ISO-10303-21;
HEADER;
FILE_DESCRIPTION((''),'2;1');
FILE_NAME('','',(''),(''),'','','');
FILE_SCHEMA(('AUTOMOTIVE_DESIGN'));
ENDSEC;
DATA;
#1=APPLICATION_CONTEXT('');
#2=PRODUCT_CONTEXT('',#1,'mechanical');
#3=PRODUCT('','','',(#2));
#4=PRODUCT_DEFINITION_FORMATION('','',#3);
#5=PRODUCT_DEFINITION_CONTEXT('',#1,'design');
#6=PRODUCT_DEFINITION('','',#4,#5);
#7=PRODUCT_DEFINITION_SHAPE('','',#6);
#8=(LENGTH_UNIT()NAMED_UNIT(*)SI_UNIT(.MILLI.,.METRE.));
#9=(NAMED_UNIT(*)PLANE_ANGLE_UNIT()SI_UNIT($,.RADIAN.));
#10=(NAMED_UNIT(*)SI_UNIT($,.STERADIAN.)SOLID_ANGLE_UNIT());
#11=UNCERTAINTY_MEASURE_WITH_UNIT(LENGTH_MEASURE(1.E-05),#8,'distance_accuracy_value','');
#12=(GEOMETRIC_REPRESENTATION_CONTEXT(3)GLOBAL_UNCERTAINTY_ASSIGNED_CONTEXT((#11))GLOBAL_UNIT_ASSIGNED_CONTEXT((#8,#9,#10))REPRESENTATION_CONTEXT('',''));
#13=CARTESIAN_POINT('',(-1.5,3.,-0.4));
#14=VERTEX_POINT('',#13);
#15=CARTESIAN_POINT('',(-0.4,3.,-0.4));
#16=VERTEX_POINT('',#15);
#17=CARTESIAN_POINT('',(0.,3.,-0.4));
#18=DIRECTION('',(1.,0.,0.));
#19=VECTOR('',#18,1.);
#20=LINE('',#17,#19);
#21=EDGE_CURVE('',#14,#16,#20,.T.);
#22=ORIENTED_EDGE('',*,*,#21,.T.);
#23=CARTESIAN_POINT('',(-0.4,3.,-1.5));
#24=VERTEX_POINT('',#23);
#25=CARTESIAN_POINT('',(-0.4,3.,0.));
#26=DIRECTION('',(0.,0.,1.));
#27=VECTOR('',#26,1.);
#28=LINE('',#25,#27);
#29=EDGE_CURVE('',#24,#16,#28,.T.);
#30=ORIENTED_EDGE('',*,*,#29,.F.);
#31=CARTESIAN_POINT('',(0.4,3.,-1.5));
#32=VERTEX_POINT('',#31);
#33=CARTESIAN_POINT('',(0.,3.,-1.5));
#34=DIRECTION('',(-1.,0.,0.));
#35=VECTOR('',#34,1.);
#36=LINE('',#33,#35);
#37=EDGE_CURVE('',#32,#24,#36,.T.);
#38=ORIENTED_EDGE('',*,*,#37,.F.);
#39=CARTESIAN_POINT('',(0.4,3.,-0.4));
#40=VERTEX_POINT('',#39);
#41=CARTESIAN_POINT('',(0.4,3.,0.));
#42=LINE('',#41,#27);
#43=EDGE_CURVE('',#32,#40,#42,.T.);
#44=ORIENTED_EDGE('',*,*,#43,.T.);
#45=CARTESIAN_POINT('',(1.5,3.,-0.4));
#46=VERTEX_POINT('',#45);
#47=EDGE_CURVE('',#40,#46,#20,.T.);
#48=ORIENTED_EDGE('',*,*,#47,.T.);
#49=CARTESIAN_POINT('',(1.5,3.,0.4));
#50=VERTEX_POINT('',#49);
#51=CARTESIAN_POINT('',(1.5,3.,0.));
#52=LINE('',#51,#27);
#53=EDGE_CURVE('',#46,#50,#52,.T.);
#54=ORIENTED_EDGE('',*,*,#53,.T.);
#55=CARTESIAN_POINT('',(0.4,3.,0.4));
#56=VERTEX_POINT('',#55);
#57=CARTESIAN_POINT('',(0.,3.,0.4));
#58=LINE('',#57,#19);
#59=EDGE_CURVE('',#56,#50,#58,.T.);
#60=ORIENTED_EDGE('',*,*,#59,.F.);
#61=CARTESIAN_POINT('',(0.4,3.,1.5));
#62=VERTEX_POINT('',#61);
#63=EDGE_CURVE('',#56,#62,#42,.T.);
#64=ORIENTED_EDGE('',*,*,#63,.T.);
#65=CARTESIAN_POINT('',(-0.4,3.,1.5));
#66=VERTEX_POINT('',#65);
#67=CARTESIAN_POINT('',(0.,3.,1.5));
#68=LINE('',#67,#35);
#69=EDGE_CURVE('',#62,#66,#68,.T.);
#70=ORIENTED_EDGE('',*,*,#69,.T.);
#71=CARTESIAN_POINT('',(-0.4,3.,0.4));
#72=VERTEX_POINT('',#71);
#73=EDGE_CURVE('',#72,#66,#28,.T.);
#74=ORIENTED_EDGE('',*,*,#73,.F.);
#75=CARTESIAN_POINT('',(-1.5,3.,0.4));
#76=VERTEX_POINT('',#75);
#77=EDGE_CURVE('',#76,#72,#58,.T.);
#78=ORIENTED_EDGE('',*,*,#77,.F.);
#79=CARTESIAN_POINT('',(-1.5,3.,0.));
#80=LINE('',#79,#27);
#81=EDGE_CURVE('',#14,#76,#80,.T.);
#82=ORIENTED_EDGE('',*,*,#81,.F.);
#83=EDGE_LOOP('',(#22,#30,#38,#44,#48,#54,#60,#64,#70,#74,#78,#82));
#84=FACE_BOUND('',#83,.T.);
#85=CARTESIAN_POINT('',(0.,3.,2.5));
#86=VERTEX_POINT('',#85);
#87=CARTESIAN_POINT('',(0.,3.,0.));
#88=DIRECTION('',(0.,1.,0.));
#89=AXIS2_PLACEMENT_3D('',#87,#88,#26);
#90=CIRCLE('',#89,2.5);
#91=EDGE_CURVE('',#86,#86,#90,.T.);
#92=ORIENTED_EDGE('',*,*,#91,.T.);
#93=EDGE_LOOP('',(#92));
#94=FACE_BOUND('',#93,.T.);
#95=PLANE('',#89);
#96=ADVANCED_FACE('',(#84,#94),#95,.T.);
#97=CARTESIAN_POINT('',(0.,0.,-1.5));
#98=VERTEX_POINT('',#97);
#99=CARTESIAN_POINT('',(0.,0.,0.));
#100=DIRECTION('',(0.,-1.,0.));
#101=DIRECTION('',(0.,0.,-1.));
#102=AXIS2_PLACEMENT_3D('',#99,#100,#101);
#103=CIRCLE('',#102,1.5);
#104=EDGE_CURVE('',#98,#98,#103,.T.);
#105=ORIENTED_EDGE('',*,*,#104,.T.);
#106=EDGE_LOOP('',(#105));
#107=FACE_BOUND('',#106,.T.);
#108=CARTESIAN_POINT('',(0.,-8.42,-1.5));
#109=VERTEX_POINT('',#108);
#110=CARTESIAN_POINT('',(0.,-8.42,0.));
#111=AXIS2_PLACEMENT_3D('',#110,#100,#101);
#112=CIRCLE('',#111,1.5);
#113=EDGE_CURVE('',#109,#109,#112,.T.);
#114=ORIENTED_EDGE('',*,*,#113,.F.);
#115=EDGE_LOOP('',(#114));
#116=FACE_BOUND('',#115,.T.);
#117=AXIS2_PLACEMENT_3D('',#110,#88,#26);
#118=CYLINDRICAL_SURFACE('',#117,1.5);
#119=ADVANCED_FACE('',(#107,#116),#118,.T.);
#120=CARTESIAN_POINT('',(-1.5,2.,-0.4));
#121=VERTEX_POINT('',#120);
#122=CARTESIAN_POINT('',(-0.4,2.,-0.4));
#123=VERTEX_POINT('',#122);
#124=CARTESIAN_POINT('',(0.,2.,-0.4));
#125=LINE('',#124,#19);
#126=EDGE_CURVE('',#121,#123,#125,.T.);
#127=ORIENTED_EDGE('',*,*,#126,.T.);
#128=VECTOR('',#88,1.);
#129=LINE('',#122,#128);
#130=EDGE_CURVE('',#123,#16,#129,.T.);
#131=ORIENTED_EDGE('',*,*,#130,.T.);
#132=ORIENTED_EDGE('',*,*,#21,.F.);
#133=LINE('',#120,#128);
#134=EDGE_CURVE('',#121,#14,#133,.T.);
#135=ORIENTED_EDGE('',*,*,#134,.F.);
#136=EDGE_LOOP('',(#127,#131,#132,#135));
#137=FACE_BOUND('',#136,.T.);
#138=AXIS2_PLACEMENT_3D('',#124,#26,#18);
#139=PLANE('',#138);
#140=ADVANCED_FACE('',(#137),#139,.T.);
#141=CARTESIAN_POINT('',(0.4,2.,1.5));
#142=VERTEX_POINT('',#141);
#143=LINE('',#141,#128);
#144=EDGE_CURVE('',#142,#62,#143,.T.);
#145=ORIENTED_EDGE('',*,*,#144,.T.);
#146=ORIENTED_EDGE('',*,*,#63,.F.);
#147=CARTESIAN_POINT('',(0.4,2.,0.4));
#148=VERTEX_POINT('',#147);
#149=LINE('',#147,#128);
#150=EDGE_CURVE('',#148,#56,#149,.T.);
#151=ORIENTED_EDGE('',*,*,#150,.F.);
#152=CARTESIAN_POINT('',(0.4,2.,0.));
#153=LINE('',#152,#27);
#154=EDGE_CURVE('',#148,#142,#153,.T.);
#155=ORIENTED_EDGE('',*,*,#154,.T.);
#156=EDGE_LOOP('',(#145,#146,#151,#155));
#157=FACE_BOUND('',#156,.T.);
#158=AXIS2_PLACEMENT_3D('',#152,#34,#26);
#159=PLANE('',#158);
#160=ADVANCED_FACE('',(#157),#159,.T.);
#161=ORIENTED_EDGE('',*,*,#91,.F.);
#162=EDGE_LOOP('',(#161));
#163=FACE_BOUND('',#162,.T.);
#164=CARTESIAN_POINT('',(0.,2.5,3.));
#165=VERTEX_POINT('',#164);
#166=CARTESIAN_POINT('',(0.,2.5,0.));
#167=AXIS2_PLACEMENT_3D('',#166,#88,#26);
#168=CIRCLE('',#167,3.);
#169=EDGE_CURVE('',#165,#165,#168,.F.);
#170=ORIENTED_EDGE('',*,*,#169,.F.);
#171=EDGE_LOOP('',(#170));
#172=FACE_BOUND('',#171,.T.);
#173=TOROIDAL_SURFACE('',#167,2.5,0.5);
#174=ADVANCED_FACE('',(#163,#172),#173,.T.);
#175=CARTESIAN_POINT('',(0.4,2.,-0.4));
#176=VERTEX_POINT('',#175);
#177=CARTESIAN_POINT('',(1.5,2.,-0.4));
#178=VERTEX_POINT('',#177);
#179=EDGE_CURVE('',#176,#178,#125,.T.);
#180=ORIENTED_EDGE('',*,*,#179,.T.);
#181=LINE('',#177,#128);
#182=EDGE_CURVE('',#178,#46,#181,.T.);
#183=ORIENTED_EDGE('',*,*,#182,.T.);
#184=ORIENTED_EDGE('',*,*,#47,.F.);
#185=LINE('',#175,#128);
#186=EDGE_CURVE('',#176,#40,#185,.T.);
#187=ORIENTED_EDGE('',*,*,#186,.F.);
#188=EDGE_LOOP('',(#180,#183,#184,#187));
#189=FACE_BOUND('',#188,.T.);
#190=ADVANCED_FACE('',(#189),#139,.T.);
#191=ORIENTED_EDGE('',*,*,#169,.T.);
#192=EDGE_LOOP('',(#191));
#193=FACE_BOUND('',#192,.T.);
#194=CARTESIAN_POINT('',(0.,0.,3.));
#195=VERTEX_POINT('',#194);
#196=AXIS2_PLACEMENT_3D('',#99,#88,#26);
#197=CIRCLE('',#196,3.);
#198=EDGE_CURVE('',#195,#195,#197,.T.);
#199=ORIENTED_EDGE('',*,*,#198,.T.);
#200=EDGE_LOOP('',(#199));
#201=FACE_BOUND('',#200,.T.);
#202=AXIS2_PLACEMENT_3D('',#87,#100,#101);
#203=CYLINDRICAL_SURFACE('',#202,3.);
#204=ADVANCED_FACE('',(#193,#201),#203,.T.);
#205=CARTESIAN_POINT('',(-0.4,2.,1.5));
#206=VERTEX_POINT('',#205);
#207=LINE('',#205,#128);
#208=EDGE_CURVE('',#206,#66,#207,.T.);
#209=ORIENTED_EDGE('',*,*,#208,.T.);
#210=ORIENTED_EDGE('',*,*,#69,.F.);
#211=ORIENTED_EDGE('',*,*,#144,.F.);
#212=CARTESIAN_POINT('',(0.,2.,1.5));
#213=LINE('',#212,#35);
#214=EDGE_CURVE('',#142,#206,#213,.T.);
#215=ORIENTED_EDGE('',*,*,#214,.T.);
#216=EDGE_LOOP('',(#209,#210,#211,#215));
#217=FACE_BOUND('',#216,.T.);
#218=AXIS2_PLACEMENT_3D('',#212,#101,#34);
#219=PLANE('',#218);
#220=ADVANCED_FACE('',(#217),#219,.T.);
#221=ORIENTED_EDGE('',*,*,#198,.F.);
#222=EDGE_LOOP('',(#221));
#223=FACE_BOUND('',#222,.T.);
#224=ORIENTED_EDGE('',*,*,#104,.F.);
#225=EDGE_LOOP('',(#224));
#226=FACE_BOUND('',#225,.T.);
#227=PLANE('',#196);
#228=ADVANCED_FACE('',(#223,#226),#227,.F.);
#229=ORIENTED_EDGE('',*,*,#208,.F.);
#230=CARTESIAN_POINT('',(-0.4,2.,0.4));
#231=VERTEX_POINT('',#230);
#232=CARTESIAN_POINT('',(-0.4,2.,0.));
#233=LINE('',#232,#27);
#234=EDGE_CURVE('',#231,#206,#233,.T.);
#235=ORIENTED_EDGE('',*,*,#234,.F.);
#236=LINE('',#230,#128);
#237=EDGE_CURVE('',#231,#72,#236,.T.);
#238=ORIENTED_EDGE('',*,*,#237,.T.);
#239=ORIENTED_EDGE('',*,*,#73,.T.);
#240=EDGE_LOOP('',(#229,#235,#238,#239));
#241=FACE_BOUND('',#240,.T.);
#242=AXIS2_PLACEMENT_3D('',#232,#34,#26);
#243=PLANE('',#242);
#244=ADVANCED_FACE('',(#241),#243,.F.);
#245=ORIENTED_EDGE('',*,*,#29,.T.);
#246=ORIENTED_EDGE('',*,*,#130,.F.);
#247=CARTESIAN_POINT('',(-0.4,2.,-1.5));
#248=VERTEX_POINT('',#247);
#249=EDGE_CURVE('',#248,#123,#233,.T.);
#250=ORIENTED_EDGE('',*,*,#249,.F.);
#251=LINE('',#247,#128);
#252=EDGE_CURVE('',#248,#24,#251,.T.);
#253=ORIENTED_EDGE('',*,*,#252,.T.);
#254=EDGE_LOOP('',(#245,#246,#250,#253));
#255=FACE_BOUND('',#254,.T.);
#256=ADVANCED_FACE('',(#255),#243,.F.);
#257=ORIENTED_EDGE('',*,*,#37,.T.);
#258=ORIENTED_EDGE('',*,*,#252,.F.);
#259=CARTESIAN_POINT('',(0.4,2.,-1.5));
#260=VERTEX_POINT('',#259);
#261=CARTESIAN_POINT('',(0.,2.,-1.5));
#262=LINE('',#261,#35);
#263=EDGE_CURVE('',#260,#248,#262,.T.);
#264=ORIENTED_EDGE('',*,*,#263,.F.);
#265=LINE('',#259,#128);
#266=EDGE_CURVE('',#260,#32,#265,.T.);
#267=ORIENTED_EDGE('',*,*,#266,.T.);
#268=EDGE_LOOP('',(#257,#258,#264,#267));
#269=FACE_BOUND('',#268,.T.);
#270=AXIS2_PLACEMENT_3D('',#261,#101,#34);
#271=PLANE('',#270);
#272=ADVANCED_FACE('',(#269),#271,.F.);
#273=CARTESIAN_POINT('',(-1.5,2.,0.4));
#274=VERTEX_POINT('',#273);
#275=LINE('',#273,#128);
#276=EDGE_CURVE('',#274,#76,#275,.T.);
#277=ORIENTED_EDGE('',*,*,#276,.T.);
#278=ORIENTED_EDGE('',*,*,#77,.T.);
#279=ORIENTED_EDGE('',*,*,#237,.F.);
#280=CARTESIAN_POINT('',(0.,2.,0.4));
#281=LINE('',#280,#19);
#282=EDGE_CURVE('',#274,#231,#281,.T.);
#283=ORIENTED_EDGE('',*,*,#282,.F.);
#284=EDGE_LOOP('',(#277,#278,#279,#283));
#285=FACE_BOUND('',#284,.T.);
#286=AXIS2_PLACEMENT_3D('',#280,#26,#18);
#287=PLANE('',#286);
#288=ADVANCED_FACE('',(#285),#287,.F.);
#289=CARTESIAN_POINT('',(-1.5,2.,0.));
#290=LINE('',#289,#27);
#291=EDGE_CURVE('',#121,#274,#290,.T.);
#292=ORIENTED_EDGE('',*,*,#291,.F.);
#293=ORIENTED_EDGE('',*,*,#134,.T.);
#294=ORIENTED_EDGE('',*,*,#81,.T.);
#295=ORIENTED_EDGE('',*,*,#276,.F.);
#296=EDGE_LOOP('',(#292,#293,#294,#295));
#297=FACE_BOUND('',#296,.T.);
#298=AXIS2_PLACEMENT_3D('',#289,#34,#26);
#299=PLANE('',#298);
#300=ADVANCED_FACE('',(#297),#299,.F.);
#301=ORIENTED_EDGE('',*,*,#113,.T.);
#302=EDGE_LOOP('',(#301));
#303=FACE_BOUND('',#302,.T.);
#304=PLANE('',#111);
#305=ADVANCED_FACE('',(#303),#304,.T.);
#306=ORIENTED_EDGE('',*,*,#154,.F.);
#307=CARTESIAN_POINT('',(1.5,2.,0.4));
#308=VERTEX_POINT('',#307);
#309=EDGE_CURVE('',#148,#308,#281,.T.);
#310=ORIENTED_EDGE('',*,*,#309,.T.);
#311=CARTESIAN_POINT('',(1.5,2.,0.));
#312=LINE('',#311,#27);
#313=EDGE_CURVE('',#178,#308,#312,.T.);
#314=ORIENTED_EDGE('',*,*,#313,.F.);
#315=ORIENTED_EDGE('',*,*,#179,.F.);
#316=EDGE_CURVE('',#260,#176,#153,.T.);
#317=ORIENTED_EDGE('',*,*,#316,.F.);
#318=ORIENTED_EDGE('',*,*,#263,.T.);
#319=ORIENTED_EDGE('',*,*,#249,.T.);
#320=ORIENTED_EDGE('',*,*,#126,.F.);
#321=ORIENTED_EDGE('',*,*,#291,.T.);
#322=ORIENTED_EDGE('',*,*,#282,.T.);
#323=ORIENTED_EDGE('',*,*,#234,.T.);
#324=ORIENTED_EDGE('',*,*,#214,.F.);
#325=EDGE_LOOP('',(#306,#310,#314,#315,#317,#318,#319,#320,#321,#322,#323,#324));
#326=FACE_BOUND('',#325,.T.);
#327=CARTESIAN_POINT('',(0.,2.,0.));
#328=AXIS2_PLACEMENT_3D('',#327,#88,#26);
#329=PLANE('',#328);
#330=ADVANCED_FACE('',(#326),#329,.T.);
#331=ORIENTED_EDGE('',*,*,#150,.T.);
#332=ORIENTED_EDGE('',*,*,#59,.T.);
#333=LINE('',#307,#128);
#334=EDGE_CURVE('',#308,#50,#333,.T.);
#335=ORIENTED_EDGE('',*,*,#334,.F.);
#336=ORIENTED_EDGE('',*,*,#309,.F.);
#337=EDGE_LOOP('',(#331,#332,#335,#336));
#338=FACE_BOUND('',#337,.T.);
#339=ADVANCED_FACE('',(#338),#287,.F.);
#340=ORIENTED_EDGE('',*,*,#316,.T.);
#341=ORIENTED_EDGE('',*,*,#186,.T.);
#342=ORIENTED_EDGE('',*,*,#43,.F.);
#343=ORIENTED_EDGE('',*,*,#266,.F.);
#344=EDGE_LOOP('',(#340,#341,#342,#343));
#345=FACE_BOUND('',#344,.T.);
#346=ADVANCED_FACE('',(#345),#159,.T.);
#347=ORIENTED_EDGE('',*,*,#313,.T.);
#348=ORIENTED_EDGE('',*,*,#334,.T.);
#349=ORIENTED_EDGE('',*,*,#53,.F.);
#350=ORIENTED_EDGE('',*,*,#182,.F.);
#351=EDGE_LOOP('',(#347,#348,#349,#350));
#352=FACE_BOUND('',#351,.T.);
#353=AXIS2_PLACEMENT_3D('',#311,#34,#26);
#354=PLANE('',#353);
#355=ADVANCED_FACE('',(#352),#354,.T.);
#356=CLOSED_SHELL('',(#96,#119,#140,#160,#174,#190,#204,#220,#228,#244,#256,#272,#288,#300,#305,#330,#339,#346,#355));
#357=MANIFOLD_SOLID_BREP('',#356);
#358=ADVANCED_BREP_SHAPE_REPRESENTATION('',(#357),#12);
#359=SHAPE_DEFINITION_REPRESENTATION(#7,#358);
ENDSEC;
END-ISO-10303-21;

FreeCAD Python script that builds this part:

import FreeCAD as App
import Part
import Sketcher
from FreeCAD import Vector
Q = App.Units.Quantity


def edges_at(feature, points):
    """Names of the edges that pass closest to the given points."""
    edges = feature.Shape.Edges
    near = lambda p: min(range(len(edges)), key=lambda i: edges[i].distToShape(Part.Vertex(*p))[0])
    return sorted({f"Edge{near(p) + 1}" for p in points})

doc = App.newDocument("Part")
body = doc.addObject("PartDesign::Body", "Body")

# Sketch on XZ plane
sketch1 = doc.addObject("Sketcher::SketchObject", "Sketch")
body.addObject(sketch1)
sketch1.AttachmentSupport = (doc.XZ_Plane, [""])
sketch1.MapMode = "FlatFace"
sketch1.addGeometry(Part.Circle(Vector(0, 0, 0), Vector(0, 0, 1), 3), False)
sketch1.addConstraint(Sketcher.Constraint("Coincident", 0, 3, -1, 1))
sketch1.addConstraint(Sketcher.Constraint("Diameter", 0, Q("6 mm")))
pad1 = doc.addObject("PartDesign::Pad", "Pad")
body.addObject(pad1)
pad1.Profile = sketch1
pad1.Length = 3
pad1.Reversed = True

# Sketch on XZ plane
sketch2 = doc.addObject("Sketcher::SketchObject", "Sketch001")
body.addObject(sketch2)
sketch2.AttachmentSupport = (doc.XZ_Plane, [""])
sketch2.MapMode = "FlatFace"
sketch2.addGeometry(Part.Circle(Vector(0, 0, 0), Vector(0, 0, 1), 1.5), False)
sketch2.addConstraint(Sketcher.Constraint("Coincident", 0, 3, -1, 1))
sketch2.addConstraint(Sketcher.Constraint("Diameter", 0, Q("3 mm")))
pad2 = doc.addObject("PartDesign::Pad", "Pad001")
body.addObject(pad2)
pad2.Profile = sketch2
pad2.Length = 8.42
doc.recompute()

fillet = doc.addObject("PartDesign::Fillet", "Fillet")
body.addObject(fillet)
fillet.Base = (pad2, edges_at(pad2, [(0, 3, -3)]))
fillet.Radius = 0.5

# Sketch on XZ plane
sketch3 = doc.addObject("Sketcher::SketchObject", "Sketch002")
body.addObject(sketch3)
sketch3.AttachmentSupport = (doc.XZ_Plane, [""])
sketch3.MapMode = "FlatFace"
sketch3.AttachmentOffset = App.Placement(Vector(0, 0, -3), App.Rotation())
sketch3.addGeometry(Part.LineSegment(Vector(-0.4, -1.5, 0), Vector(-0.4, -0.4, 0)), False)
sketch3.addGeometry(Part.LineSegment(Vector(-0.4, -0.4, 0), Vector(-1.5, -0.4, 0)), False)
sketch3.addGeometry(Part.LineSegment(Vector(-1.5, -0.4, 0), Vector(-1.5, 0.4, 0)), False)
sketch3.addGeometry(Part.LineSegment(Vector(-1.5, 0.4, 0), Vector(-0.4, 0.4, 0)), False)
sketch3.addGeometry(Part.LineSegment(Vector(-0.4, 0.4, 0), Vector(-0.4, 1.5, 0)), False)
sketch3.addGeometry(Part.LineSegment(Vector(-0.4, 1.5, 0), Vector(0.4, 1.5, 0)), False)
sketch3.addGeometry(Part.LineSegment(Vector(0.4, 1.5, 0), Vector(0.4, 0.4, 0)), False)
sketch3.addGeometry(Part.LineSegment(Vector(0.4, 0.4, 0), Vector(1.5, 0.4, 0)), False)
sketch3.addGeometry(Part.LineSegment(Vector(1.5, 0.4, 0), Vector(1.5, -0.4, 0)), False)
sketch3.addGeometry(Part.LineSegment(Vector(1.5, -0.4, 0), Vector(0.4, -0.4, 0)), False)
sketch3.addGeometry(Part.LineSegment(Vector(0.4, -0.4, 0), Vector(0.4, -1.5, 0)), False)
sketch3.addGeometry(Part.LineSegment(Vector(0.4, -1.5, 0), Vector(-0.4, -1.5, 0)), False)
sketch3.addConstraint(Sketcher.Constraint("Coincident", 0, 2, 1, 1))
sketch3.addConstraint(Sketcher.Constraint("Coincident", 1, 2, 2, 1))
sketch3.addConstraint(Sketcher.Constraint("Coincident", 2, 2, 3, 1))
sketch3.addConstraint(Sketcher.Constraint("Coincident", 3, 2, 4, 1))
sketch3.addConstraint(Sketcher.Constraint("Coincident", 4, 2, 5, 1))
sketch3.addConstraint(Sketcher.Constraint("Coincident", 5, 2, 6, 1))
sketch3.addConstraint(Sketcher.Constraint("Coincident", 6, 2, 7, 1))
sketch3.addConstraint(Sketcher.Constraint("Coincident", 7, 2, 8, 1))
sketch3.addConstraint(Sketcher.Constraint("Coincident", 8, 2, 9, 1))
sketch3.addConstraint(Sketcher.Constraint("Coincident", 9, 2, 10, 1))
sketch3.addConstraint(Sketcher.Constraint("Coincident", 10, 2, 11, 1))
sketch3.addConstraint(Sketcher.Constraint("Coincident", 11, 2, 0, 1))
sketch3.addConstraint(Sketcher.Constraint("Vertical", 0))
sketch3.addConstraint(Sketcher.Constraint("Horizontal", 1))
sketch3.addConstraint(Sketcher.Constraint("Vertical", 2))
sketch3.addConstraint(Sketcher.Constraint("Horizontal", 3))
sketch3.addConstraint(Sketcher.Constraint("Vertical", 4))
sketch3.addConstraint(Sketcher.Constraint("Horizontal", 5))
sketch3.addConstraint(Sketcher.Constraint("Vertical", 6))
sketch3.addConstraint(Sketcher.Constraint("Horizontal", 7))
sketch3.addConstraint(Sketcher.Constraint("Vertical", 8))
sketch3.addConstraint(Sketcher.Constraint("Horizontal", 9))
sketch3.addConstraint(Sketcher.Constraint("Vertical", 10))
sketch3.addConstraint(Sketcher.Constraint("Horizontal", 11))
sketch3.addConstraint(Sketcher.Constraint("Symmetric", 0, 2, 6, 2, -1, 1))
sketch3.addConstraint(Sketcher.Constraint("Symmetric", 2, 2, 8, 2, -1, 1))
sketch3.addConstraint(Sketcher.Constraint("Symmetric", 4, 2, 10, 2, -1, 1))
sketch3.addConstraint(Sketcher.Constraint("Symmetric", 3, 2, 6, 2, -2))
sketch3.addConstraint(Sketcher.Constraint("Equal", 9, 0))
sketch3.addConstraint(Sketcher.Constraint("Equal", 11, 2))
sketch3.addConstraint(Sketcher.Constraint("DistanceX", 1, 2, 1, 1, Q("1.1 mm")))
sketch3.addConstraint(Sketcher.Constraint("DistanceX", 5, 1, 5, 2, Q("0.8 mm")))
pocket1 = doc.addObject("PartDesign::Pocket", "Pocket")
body.addObject(pocket1)
pocket1.Profile = sketch3
pocket1.Length = 1
pocket1.Reversed = True

doc.recompute()
